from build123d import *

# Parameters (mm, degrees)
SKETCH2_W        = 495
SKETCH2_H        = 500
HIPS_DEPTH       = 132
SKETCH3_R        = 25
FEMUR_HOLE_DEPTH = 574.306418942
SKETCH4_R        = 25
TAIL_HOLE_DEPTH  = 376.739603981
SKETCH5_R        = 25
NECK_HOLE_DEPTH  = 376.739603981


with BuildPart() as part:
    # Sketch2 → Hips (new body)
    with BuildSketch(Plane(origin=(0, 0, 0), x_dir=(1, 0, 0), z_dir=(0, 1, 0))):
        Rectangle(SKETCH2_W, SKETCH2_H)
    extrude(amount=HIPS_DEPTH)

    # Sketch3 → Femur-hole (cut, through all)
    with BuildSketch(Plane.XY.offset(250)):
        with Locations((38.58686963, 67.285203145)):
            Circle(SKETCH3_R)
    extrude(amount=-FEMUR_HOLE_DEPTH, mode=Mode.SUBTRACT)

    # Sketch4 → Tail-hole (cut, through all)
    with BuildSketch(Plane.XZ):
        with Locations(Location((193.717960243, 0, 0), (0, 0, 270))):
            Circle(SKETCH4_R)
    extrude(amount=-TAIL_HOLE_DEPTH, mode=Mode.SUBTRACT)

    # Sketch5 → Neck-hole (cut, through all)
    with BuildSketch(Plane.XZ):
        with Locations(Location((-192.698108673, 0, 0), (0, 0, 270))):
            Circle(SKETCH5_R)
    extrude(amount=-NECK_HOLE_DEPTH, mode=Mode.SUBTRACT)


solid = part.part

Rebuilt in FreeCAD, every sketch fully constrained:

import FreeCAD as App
import Part
import Sketcher
Q = App.Units.Quantity


def add_polygon(sketch, points):
    """Adds a closed chain of lines whose ends are joined by coincident constraints."""
    first, n = sketch.GeometryCount, len(points)
    for a, b in zip(points, points[1:] + points[:1]):
        sketch.addGeometry(Part.LineSegment(App.Vector(*a, 0), App.Vector(*b, 0)), False)
    for i in range(n):
        sketch.addConstraint(Sketcher.Constraint("Coincident", first + i, 2, first + (i + 1) % n, 1))

doc = App.newDocument("Part")
params = doc.addObject("Spreadsheet::Sheet", "Params")
for row, (alias, value) in enumerate([
    ("sketch1_width", "495 mm"),
    ("sketch1_height", "500 mm"),
    ("pad1_length", "132 mm"),
    ("sketch2_diameter", "50 mm"),
    ("sketch3_diameter", "50 mm"),
    ("sketch4_diameter", "50 mm"),
], start=1):
    params.set(f"A{row}", alias)
    params.set(f"B{row}", "=" + value)
    params.setAlias(f"B{row}", alias)

body = doc.addObject("PartDesign::Body", "Body")

# Sketch on XZ plane
sketch1 = body.newObject("Sketcher::SketchObject", "Sketch")
sketch1.AttachmentSupport = (doc.getObject("XZ_Plane"), [""])
sketch1.MapMode = "FlatFace"
add_polygon(sketch1, [(-248, -250), (-248, 250), (248, 250), (248, -250)])  # lines 0-3
sketch1.addConstraint([
    Sketcher.Constraint("Vertical", 0),
    Sketcher.Constraint("Horizontal", 1),
    Sketcher.Constraint("Vertical", 2),
    Sketcher.Constraint("Horizontal", 3),
    Sketcher.Constraint("Symmetric", 0, 2, 2, 2, -1, 1),
    Sketcher.Constraint("DistanceX", 1, 1, 1, 2, Q("495 mm")),
    Sketcher.Constraint("DistanceY", 0, 1, 0, 2, Q("500 mm")),
])
sketch1.setExpression("Constraints[9]", "Params.sketch1_width")
sketch1.setExpression("Constraints[10]", "Params.sketch1_height")
pad1 = body.newObject("PartDesign::Pad", "Pad")
pad1.Profile = sketch1
pad1.setExpression("Length", "Params.pad1_length")
pad1.Reversed = True

# Sketch on XY plane
sketch2 = body.newObject("Sketcher::SketchObject", "Sketch001")
sketch2.AttachmentSupport = (doc.getObject("XY_Plane"), [""])
sketch2.MapMode = "FlatFace"
sketch2.AttachmentOffset = App.Placement(App.Vector(0, 0, 250), App.Rotation())
sketch2.addGeometry(Part.Circle(App.Vector(39, 67, 0), App.Vector(0, 0, 1), 25), False)
sketch2.addConstraint([
    Sketcher.Constraint("Diameter", 0, Q("50 mm")),
    Sketcher.Constraint("DistanceX", -1, 1, 0, 3, Q("38.58687 mm")),
    Sketcher.Constraint("DistanceY", -1, 1, 0, 3, Q("67.285203 mm")),
])
sketch2.setExpression("Constraints[0]", "Params.sketch2_diameter")
pocket1 = body.newObject("PartDesign::Pocket", "Pocket")
pocket1.Profile = sketch2
pocket1.Type = "ThroughAll"

# Sketch on XZ plane
sketch3 = body.newObject("Sketcher::SketchObject", "Sketch002")
sketch3.AttachmentSupport = (doc.getObject("XZ_Plane"), [""])
sketch3.MapMode = "FlatFace"
sketch3.addGeometry(Part.Circle(App.Vector(194, 0, 0), App.Vector(0, 0, 1), 25), False)
sketch3.addConstraint([
    Sketcher.Constraint("PointOnObject", 0, 3, -1),
    Sketcher.Constraint("Diameter", 0, Q("50 mm")),
    Sketcher.Constraint("DistanceX", -1, 1, 0, 3, Q("193.71796 mm")),
])
sketch3.setExpression("Constraints[1]", "Params.sketch3_diameter")
pocket2 = body.newObject("PartDesign::Pocket", "Pocket001")
pocket2.Profile = sketch3
pocket2.Type = "ThroughAll"

# Sketch on XZ plane
sketch4 = body.newObject("Sketcher::SketchObject", "Sketch003")
sketch4.AttachmentSupport = (doc.getObject("XZ_Plane"), [""])
sketch4.MapMode = "FlatFace"
sketch4.addGeometry(Part.Circle(App.Vector(-193, 0, 0), App.Vector(0, 0, 1), 25), False)
sketch4.addConstraint([
    Sketcher.Constraint("PointOnObject", 0, 3, -1),
    Sketcher.Constraint("Diameter", 0, Q("50 mm")),
    Sketcher.Constraint("DistanceX", 0, 3, -1, 1, Q("192.698109 mm")),
])
sketch4.setExpression("Constraints[1]", "Params.sketch4_diameter")
pocket3 = body.newObject("PartDesign::Pocket", "Pocket002")
pocket3.Profile = sketch4
pocket3.Type = "ThroughAll"

doc.recompute()
